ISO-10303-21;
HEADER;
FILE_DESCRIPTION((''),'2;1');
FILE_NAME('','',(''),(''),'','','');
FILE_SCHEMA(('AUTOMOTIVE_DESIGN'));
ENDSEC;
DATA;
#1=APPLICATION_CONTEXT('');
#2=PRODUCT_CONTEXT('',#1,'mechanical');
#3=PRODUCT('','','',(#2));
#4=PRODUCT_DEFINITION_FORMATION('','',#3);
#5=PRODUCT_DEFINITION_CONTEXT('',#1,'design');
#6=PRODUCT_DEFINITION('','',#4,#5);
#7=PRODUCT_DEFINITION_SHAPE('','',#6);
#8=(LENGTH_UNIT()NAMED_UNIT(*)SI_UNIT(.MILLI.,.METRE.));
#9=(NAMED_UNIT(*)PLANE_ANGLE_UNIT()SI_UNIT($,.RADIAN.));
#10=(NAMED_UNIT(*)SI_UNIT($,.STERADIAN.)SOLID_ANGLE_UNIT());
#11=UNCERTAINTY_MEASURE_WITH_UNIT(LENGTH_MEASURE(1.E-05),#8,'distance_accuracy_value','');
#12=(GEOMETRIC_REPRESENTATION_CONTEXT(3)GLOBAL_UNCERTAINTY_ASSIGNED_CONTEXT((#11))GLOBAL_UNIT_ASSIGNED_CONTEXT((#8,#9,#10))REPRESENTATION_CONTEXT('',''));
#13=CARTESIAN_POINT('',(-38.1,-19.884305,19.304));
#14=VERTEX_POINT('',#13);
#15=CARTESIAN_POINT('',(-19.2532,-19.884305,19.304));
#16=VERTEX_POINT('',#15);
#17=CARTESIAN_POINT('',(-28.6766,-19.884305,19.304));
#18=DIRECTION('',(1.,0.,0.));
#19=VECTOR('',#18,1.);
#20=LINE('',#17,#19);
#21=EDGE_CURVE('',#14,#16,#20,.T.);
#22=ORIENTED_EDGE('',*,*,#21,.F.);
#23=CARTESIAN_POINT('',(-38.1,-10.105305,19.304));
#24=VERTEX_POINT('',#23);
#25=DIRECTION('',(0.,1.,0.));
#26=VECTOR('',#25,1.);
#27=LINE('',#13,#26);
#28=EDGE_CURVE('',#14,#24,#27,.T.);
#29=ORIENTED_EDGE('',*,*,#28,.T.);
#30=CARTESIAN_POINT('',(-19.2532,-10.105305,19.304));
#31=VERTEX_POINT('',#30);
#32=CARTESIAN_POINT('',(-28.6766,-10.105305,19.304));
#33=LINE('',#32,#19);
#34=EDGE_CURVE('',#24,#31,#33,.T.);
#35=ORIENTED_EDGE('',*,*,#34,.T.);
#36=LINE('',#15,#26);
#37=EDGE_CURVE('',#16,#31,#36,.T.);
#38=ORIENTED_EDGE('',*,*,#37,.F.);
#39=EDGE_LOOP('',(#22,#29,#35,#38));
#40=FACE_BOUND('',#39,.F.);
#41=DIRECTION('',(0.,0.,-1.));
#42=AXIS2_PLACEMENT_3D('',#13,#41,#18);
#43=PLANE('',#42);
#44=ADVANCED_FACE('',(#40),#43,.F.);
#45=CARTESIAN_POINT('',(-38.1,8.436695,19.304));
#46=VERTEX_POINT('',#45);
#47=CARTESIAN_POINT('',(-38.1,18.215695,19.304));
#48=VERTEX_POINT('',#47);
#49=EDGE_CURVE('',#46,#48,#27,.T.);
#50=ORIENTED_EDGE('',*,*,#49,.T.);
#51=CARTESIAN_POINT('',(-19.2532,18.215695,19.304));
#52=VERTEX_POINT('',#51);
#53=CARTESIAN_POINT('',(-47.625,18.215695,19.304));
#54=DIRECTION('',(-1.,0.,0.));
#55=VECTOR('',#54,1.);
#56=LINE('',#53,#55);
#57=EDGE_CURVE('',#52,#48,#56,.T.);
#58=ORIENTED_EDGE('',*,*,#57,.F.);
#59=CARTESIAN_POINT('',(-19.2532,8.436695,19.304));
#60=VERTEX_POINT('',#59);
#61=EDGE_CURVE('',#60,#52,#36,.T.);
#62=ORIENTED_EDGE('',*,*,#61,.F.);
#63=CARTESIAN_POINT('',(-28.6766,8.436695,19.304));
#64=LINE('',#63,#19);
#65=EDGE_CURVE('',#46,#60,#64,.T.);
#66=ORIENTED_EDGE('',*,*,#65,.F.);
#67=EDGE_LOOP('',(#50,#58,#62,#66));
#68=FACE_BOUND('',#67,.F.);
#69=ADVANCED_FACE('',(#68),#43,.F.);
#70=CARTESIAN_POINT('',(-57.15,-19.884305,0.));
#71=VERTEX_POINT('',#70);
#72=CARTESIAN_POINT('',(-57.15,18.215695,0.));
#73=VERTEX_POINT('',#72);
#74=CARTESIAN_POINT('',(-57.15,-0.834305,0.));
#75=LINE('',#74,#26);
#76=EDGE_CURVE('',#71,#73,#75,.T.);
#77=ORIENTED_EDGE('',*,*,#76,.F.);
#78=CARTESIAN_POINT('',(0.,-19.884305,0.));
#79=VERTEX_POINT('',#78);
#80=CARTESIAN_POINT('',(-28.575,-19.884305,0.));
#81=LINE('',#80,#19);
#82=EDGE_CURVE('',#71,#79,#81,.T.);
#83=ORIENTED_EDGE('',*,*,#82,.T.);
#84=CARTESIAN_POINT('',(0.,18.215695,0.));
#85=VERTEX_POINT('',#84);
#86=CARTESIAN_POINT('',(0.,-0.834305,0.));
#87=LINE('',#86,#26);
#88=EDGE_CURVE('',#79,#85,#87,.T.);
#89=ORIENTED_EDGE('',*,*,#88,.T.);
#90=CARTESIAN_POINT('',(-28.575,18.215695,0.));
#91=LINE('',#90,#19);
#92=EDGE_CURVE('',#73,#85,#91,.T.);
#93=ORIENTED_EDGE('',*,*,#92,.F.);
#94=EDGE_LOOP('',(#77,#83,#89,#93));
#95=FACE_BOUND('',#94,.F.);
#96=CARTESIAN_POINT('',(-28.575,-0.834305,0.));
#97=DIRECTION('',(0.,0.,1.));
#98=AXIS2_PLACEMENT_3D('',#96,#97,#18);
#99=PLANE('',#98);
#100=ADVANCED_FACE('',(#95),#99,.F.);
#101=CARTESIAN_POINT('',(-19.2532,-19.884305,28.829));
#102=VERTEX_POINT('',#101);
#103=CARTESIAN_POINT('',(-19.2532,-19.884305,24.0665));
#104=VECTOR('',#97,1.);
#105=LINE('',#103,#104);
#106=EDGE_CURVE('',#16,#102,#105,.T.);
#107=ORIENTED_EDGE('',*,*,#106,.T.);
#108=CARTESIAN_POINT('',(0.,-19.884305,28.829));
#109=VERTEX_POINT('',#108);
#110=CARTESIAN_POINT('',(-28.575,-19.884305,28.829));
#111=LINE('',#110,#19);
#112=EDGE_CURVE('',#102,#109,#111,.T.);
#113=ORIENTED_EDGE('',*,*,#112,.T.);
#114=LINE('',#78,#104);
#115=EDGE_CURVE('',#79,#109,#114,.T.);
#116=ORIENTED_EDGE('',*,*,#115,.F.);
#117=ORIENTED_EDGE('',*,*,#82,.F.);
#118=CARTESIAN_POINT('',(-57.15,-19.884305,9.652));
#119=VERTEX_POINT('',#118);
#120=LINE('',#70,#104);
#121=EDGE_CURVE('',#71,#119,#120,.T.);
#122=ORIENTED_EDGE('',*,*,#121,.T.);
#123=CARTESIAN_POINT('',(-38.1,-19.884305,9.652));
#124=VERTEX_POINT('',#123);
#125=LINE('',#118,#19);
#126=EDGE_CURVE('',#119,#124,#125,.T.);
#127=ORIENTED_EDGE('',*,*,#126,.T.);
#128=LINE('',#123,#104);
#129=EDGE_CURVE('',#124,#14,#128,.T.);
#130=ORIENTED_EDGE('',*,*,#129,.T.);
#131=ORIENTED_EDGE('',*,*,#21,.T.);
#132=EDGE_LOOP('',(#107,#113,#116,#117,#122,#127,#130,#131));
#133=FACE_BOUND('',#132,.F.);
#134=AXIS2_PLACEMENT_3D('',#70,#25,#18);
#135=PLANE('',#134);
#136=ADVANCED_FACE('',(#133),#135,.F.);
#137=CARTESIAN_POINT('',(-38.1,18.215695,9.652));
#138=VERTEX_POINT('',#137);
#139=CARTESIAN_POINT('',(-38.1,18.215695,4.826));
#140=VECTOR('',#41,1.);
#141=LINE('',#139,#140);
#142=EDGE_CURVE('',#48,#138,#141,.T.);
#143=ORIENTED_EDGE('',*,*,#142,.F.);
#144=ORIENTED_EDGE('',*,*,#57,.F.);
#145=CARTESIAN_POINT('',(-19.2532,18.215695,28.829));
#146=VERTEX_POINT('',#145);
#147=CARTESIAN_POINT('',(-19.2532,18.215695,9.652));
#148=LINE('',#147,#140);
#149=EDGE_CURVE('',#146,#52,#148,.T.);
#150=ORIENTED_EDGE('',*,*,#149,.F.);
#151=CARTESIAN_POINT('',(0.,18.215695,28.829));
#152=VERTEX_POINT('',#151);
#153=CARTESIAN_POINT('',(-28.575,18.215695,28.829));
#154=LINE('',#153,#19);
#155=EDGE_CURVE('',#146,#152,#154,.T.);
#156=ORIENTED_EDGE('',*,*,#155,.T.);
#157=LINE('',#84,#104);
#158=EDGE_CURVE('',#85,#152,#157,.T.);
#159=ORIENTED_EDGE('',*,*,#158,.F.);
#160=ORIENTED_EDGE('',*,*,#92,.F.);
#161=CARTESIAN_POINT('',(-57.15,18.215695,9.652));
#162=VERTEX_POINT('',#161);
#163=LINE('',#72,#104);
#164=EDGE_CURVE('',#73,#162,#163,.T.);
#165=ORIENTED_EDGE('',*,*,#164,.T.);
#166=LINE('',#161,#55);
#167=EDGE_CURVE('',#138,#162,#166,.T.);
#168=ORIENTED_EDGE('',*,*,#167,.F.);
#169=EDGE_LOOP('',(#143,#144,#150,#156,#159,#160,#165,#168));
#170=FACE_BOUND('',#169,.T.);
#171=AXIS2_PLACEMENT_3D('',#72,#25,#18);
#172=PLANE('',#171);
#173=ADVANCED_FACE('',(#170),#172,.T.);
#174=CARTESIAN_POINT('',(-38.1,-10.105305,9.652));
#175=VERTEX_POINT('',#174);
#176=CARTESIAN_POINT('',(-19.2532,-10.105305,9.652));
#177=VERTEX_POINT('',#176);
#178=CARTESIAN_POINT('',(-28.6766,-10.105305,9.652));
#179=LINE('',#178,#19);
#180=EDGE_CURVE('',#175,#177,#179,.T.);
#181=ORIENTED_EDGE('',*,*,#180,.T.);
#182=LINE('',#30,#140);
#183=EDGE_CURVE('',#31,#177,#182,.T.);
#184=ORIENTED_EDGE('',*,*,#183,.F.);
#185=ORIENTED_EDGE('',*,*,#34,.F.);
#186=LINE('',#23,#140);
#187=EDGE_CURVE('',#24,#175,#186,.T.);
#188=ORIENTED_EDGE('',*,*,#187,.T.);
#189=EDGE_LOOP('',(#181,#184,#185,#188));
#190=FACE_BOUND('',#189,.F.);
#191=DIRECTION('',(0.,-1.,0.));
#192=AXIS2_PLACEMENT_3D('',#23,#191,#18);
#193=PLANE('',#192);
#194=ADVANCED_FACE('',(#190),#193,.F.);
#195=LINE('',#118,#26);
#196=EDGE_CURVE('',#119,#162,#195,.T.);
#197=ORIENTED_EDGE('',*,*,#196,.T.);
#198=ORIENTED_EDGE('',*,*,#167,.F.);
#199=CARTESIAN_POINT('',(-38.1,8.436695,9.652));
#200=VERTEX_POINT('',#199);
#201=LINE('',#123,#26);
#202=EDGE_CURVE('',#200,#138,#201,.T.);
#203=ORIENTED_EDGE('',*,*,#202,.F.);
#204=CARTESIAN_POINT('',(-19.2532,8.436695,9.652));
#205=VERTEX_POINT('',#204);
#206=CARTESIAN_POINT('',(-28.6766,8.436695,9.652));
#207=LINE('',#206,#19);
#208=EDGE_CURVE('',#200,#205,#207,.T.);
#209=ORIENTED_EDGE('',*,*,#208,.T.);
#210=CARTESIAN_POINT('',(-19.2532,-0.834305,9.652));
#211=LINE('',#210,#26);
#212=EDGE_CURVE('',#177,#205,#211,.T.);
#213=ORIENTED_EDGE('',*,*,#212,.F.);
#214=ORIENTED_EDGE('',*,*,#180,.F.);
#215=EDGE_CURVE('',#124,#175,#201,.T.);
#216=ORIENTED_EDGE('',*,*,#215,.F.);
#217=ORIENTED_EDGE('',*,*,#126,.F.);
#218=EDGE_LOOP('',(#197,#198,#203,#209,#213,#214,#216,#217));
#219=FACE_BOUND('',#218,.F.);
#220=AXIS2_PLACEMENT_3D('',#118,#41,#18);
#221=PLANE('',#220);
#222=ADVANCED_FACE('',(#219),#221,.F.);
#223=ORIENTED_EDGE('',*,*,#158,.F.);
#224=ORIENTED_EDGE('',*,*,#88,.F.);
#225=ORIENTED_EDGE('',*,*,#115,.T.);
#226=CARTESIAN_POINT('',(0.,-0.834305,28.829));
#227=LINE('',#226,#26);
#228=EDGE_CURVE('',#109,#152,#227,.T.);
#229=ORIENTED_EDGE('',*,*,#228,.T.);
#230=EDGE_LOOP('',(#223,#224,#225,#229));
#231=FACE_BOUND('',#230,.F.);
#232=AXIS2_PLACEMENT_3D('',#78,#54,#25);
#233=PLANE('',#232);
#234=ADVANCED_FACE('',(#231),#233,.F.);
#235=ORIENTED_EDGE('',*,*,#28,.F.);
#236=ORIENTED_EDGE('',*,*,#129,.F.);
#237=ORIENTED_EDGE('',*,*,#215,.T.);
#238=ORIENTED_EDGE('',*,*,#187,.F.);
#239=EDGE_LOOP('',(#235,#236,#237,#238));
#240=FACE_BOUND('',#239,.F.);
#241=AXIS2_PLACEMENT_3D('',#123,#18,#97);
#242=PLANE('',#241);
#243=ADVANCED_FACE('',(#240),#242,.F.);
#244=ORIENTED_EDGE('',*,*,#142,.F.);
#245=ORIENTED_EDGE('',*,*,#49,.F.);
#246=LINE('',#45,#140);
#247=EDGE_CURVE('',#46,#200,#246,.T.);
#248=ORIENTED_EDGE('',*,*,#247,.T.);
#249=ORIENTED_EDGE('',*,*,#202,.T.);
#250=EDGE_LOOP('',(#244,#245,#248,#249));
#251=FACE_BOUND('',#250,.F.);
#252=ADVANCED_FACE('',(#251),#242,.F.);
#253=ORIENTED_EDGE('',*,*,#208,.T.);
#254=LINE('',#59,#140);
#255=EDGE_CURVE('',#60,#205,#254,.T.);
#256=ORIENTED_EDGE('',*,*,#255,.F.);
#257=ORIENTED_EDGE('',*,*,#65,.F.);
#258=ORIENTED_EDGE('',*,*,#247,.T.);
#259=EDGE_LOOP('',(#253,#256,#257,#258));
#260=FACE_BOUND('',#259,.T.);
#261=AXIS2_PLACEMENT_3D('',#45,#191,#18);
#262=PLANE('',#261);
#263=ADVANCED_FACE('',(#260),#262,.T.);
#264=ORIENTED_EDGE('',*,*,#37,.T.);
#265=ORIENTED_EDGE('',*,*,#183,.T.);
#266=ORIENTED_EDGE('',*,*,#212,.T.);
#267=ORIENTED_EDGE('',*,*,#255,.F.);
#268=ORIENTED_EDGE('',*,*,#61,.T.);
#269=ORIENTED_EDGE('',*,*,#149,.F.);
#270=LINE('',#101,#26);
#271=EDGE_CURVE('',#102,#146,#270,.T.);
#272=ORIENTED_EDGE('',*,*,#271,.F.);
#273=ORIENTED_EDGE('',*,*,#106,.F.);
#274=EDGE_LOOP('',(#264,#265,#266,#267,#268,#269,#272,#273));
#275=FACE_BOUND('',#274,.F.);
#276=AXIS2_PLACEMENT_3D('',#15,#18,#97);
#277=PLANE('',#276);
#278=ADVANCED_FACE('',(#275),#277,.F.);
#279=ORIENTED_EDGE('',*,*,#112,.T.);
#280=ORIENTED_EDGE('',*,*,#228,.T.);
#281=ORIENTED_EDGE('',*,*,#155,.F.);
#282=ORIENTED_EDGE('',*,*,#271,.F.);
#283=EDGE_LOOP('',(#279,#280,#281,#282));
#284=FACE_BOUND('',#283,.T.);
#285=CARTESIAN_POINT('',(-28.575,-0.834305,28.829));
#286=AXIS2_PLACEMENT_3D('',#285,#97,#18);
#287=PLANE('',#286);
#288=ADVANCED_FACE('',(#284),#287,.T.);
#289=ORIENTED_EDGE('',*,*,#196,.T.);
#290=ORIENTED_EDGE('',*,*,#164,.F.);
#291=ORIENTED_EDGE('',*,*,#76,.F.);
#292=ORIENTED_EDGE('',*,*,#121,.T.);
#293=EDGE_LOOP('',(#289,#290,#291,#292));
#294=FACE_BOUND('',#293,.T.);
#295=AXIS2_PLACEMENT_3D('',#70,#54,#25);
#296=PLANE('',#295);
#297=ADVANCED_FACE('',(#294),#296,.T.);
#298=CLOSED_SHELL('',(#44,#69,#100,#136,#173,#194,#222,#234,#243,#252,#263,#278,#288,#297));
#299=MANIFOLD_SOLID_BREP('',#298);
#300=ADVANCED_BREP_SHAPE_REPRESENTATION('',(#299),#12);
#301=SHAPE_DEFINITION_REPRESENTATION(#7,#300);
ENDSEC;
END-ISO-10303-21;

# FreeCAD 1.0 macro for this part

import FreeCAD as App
import Part
import Sketcher

V = App.Vector
Q = App.Units.Quantity

doc = App.newDocument("Part")
body = doc.addObject("PartDesign::Body", "Body")

# Sketch on XY plane
sketch1 = doc.addObject("Sketcher::SketchObject", "Sketch")
body.addObject(sketch1)
sketch1.AttachmentSupport = (doc.XY_Plane, [""])
sketch1.MapMode = "FlatFace"
sketch1.addGeometry([
    Part.LineSegment(V(-57, 18, 0), V(-57, -20, 0)),
    Part.LineSegment(V(-57, -20, 0), V(0, -20, 0)),
    Part.LineSegment(V(0, -20, 0), V(0, 18, 0)),
    Part.LineSegment(V(0, 18, 0), V(-57, 18, 0)),
], False)
sketch1.addConstraint([
    Sketcher.Constraint("Coincident", 0, 2, 1, 1),
    Sketcher.Constraint("Coincident", 1, 2, 2, 1),
    Sketcher.Constraint("Coincident", 2, 2, 3, 1),
    Sketcher.Constraint("Coincident", 3, 2, 0, 1),
    Sketcher.Constraint("Vertical", 0),
    Sketcher.Constraint("Horizontal", 1),
    Sketcher.Constraint("Vertical", 2),
    Sketcher.Constraint("Horizontal", 3),
    Sketcher.Constraint("PointOnObject", 1, 2, -2),
    Sketcher.Constraint("DistanceY", 0, 2, 0, 1, Q("1.5 in")),
    Sketcher.Constraint("DistanceX", 1, 1, 1, 2, Q("2.25 in")),
    Sketcher.Constraint("DistanceY", 0, 2, -1, 1, Q("19.884305 mm")),
])
pad1 = doc.addObject("PartDesign::Pad", "Pad")
body.addObject(pad1)
pad1.Profile = sketch1
pad1.Length = Q("1.135 in")

# Sketch on XZ plane
sketch2 = doc.addObject("Sketcher::SketchObject", "Sketch001")
body.addObject(sketch2)
sketch2.AttachmentSupport = (doc.XZ_Plane, [""])
sketch2.MapMode = "FlatFace"
sketch2.AttachmentOffset = App.Placement(V(0, 0, 19.884305), App.Rotation())
sketch2.addGeometry([
    Part.LineSegment(V(-57, 29, 0), V(-57, 10, 0)),  # 0
    Part.LineSegment(V(-57, 10, 0), V(-38, 10, 0)),  # 1
    Part.LineSegment(V(-38, 10, 0), V(-38, 19, 0)),  # 2
    Part.LineSegment(V(-38, 19, 0), V(-19, 19, 0)),  # 3
    Part.LineSegment(V(-19, 19, 0), V(-19, 29, 0)),  # 4
    Part.LineSegment(V(-19, 29, 0), V(-57, 29, 0)),  # 5
], False)
sketch2.addConstraint([
    Sketcher.Constraint("Coincident", 0, 2, 1, 1),
    Sketcher.Constraint("Coincident", 1, 2, 2, 1),
    Sketcher.Constraint("Coincident", 2, 2, 3, 1),
    Sketcher.Constraint("Coincident", 3, 2, 4, 1),
    Sketcher.Constraint("Coincident", 4, 2, 5, 1),
    Sketcher.Constraint("Coincident", 5, 2, 0, 1),
    Sketcher.Constraint("Vertical", 0),
    Sketcher.Constraint("Horizontal", 1),
    Sketcher.Constraint("Vertical", 2),
    Sketcher.Constraint("Horizontal", 3),
    Sketcher.Constraint("Vertical", 4),
    Sketcher.Constraint("Horizontal", 5),
    Sketcher.Constraint("DistanceX", 1, 1, 1, 2, Q("0.75 in")),
    Sketcher.Constraint("DistanceY", 2, 1, 2, 2, Q("0.38 in")),
    Sketcher.Constraint("DistanceX", 1, 2, -1, 1, Q("1.5 in")),
    Sketcher.Constraint("DistanceX", 3, 1, 3, 2, Q("0.742 in")),
    Sketcher.Constraint("DistanceY", 0, 2, 0, 1, Q("0.755 in")),
    Sketcher.Constraint("DistanceY", -1, 1, 0, 2, Q("0.38 in")),
])
pocket1 = doc.addObject("PartDesign::Pocket", "Pocket")
body.addObject(pocket1)
pocket1.Profile = sketch2
pocket1.Type = "ThroughAll"

# Sketch on XY plane
sketch3 = doc.addObject("Sketcher::SketchObject", "Sketch002")
body.addObject(sketch3)
sketch3.AttachmentSupport = (doc.XY_Plane, [""])
sketch3.MapMode = "FlatFace"
sketch3.AttachmentOffset = App.Placement(V(0, 0, 0.76 * 25.4), App.Rotation())
sketch3.addGeometry([
    Part.LineSegment(V(-38, 8, 0), V(-38, -10, 0)),
    Part.LineSegment(V(-38, -10, 0), V(-19, -10, 0)),
    Part.LineSegment(V(-19, -10, 0), V(-19, 8, 0)),
    Part.LineSegment(V(-19, 8, 0), V(-38, 8, 0)),
], False)
sketch3.addConstraint([
    Sketcher.Constraint("Coincident", 0, 2, 1, 1),
    Sketcher.Constraint("Coincident", 1, 2, 2, 1),
    Sketcher.Constraint("Coincident", 2, 2, 3, 1),
    Sketcher.Constraint("Coincident", 3, 2, 0, 1),
    Sketcher.Constraint("Vertical", 0),
    Sketcher.Constraint("Horizontal", 1),
    Sketcher.Constraint("Vertical", 2),
    Sketcher.Constraint("Horizontal", 3),
    Sketcher.Constraint("DistanceY", 0, 2, 0, 1, Q("0.73 in")),
    Sketcher.Constraint("DistanceX", 0, 2, -1, 1, Q("1.5 in")),
    Sketcher.Constraint("DistanceX", 1, 1, 1, 2, Q("0.742 in")),
    Sketcher.Constraint("DistanceY", 0, 2, -1, 1, Q("10.105305 mm")),
])
pocket2 = doc.addObject("PartDesign::Pocket", "Pocket001")
body.addObject(pocket2)
pocket2.Profile = sketch3
pocket2.Length = Q("0.38 in")

doc.recompute()
